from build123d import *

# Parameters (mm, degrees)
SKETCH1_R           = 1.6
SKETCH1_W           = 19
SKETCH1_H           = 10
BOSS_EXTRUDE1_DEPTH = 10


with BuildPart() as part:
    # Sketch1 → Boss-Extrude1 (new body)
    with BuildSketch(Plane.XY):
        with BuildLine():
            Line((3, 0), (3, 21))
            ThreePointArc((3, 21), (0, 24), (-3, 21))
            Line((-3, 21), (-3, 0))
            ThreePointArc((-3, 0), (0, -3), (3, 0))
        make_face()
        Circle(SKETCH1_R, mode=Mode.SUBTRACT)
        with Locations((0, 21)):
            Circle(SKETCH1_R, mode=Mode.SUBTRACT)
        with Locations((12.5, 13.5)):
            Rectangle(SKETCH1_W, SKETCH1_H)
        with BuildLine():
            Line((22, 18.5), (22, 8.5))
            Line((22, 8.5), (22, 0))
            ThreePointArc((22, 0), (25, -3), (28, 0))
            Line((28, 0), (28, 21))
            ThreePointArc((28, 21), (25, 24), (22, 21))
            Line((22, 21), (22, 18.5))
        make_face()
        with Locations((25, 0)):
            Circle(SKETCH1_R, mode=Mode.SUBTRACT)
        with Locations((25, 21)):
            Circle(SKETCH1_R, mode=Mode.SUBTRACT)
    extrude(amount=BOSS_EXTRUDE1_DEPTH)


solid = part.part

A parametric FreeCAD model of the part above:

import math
import FreeCAD as App
import Part
import Sketcher
from FreeCAD import Vector

doc = App.newDocument("Part")
body = doc.addObject("PartDesign::Body", "Body")

# Sketch on XY plane
sketch1 = body.newObject("Sketcher::SketchObject", "Sketch")
sketch1.AttachmentSupport = (doc.getObject("XY_Plane"), [""])
sketch1.MapMode = "FlatFace"
sketch1.addGeometry(Part.LineSegment(Vector(3, 0, 0), Vector(3, 8.5, 0)), False)
sketch1.addGeometry(Part.LineSegment(Vector(3, 8.5, 0), Vector(22, 8.5, 0)), False)
sketch1.addGeometry(Part.LineSegment(Vector(22, 8.5, 0), Vector(22, 0, 0)), False)
sketch1.addGeometry(Part.ArcOfCircle(Part.Circle(Vector(25, 0, 0), Vector(0, 0, 1), 3), math.radians(180), math.radians(360)), False)
sketch1.addGeometry(Part.LineSegment(Vector(28, 0, 0), Vector(28, 21, 0)), False)
sketch1.addGeometry(Part.ArcOfCircle(Part.Circle(Vector(25, 21, 0), Vector(0, 0, 1), 3), math.radians(0), math.radians(180)), False)
sketch1.addGeometry(Part.LineSegment(Vector(22, 21, 0), Vector(22, 18.5, 0)), False)
sketch1.addGeometry(Part.LineSegment(Vector(22, 18.5, 0), Vector(3, 18.5, 0)), False)
sketch1.addGeometry(Part.LineSegment(Vector(3, 18.5, 0), Vector(3, 21, 0)), False)
sketch1.addGeometry(Part.ArcOfCircle(Part.Circle(Vector(0, 21, 0), Vector(0, 0, 1), 3), math.radians(0), math.radians(180)), False)
sketch1.addGeometry(Part.LineSegment(Vector(-3, 21, 0), Vector(-3, 0, 0)), False)
sketch1.addGeometry(Part.ArcOfCircle(Part.Circle(Vector(0, 0, 0), Vector(0, 0, 1), 3), math.radians(180), math.radians(360)), False)
sketch1.addGeometry(Part.Circle(Vector(0, 0, 0), Vector(0, 0, 1), 1.6), False)
sketch1.addGeometry(Part.Circle(Vector(25, 0, 0), Vector(0, 0, 1), 1.6), False)
sketch1.addGeometry(Part.Circle(Vector(0, 21, 0), Vector(0, 0, 1), 1.6), False)
sketch1.addGeometry(Part.Circle(Vector(25, 21, 0), Vector(0, 0, 1), 1.6), False)
sketch1.addConstraint(Sketcher.Constraint("Coincident", 0, 2, 1, 1))
sketch1.addConstraint(Sketcher.Constraint("Coincident", 1, 2, 2, 1))
sketch1.addConstraint(Sketcher.Constraint("Tangent", 2, 2, 3, 1))
sketch1.addConstraint(Sketcher.Constraint("Tangent", 3, 2, 4, 1))
sketch1.addConstraint(Sketcher.Constraint("Tangent", 4, 2, 5, 1))
sketch1.addConstraint(Sketcher.Constraint("Tangent", 5, 2, 6, 1))
sketch1.addConstraint(Sketcher.Constraint("Coincident", 6, 2, 7, 1))
sketch1.addConstraint(Sketcher.Constraint("Coincident", 7, 2, 8, 1))
sketch1.addConstraint(Sketcher.Constraint("Tangent", 8, 2, 9, 1))
sketch1.addConstraint(Sketcher.Constraint("Tangent", 9, 2, 10, 1))
sketch1.addConstraint(Sketcher.Constraint("Tangent", 10, 2, 11, 1))
sketch1.addConstraint(Sketcher.Constraint("Tangent", 11, 2, 0, 1))
sketch1.addConstraint(Sketcher.Constraint("Vertical", 0))
sketch1.addConstraint(Sketcher.Constraint("Horizontal", 1))
sketch1.addConstraint(Sketcher.Constraint("Vertical", 2))
sketch1.addConstraint(Sketcher.Constraint("Vertical", 4))
sketch1.addConstraint(Sketcher.Constraint("Vertical", 6))
sketch1.addConstraint(Sketcher.Constraint("Horizontal", 7))
sketch1.addConstraint(Sketcher.Constraint("Vertical", 8))
sketch1.addConstraint(Sketcher.Constraint("Vertical", 10))
sketch1.addConstraint(Sketcher.Constraint("Coincident", 11, 3, -1, 1))
sketch1.addConstraint(Sketcher.Constraint("Coincident", 12, 3, -1, 1))
sketch1.addConstraint(Sketcher.Constraint("Coincident", 13, 3, 3, 3))
sketch1.addConstraint(Sketcher.Constraint("Coincident", 14, 3, 9, 3))
sketch1.addConstraint(Sketcher.Constraint("Coincident", 15, 3, 5, 3))
sketch1.addConstraint(Sketcher.Constraint("Equal", 3, 5))
sketch1.addConstraint(Sketcher.Constraint("Equal", 5, 9))
sketch1.addConstraint(Sketcher.Constraint("Equal", 9, 11))
sketch1.addConstraint(Sketcher.Constraint("Equal", 12, 13))
sketch1.addConstraint(Sketcher.Constraint("Equal", 13, 14))
sketch1.addConstraint(Sketcher.Constraint("Equal", 14, 15))
sketch1.addConstraint(Sketcher.Constraint("PointOnObject", 3, 3, -1))
sketch1.addConstraint(Sketcher.Constraint("Horizontal", 5, 3, 9, 3))
sketch1.addConstraint(Sketcher.Constraint("Radius", 3, 3.0))
sketch1.addConstraint(Sketcher.Constraint("Diameter", 12, 3.2))
sketch1.addConstraint(Sketcher.Constraint("DistanceX", 1, 1, 1, 2, 19.0))
sketch1.addConstraint(Sketcher.Constraint("DistanceY", 4, 1, 4, 2, 21.0))
sketch1.addConstraint(Sketcher.Constraint("DistanceY", 0, 1, 0, 2, 8.5))
sketch1.addConstraint(Sketcher.Constraint("DistanceY", 6, 2, 6, 1, 2.5))
pad1 = body.newObject("PartDesign::Pad", "Pad")
pad1.Profile = sketch1
pad1.Length = 10

doc.recompute()
